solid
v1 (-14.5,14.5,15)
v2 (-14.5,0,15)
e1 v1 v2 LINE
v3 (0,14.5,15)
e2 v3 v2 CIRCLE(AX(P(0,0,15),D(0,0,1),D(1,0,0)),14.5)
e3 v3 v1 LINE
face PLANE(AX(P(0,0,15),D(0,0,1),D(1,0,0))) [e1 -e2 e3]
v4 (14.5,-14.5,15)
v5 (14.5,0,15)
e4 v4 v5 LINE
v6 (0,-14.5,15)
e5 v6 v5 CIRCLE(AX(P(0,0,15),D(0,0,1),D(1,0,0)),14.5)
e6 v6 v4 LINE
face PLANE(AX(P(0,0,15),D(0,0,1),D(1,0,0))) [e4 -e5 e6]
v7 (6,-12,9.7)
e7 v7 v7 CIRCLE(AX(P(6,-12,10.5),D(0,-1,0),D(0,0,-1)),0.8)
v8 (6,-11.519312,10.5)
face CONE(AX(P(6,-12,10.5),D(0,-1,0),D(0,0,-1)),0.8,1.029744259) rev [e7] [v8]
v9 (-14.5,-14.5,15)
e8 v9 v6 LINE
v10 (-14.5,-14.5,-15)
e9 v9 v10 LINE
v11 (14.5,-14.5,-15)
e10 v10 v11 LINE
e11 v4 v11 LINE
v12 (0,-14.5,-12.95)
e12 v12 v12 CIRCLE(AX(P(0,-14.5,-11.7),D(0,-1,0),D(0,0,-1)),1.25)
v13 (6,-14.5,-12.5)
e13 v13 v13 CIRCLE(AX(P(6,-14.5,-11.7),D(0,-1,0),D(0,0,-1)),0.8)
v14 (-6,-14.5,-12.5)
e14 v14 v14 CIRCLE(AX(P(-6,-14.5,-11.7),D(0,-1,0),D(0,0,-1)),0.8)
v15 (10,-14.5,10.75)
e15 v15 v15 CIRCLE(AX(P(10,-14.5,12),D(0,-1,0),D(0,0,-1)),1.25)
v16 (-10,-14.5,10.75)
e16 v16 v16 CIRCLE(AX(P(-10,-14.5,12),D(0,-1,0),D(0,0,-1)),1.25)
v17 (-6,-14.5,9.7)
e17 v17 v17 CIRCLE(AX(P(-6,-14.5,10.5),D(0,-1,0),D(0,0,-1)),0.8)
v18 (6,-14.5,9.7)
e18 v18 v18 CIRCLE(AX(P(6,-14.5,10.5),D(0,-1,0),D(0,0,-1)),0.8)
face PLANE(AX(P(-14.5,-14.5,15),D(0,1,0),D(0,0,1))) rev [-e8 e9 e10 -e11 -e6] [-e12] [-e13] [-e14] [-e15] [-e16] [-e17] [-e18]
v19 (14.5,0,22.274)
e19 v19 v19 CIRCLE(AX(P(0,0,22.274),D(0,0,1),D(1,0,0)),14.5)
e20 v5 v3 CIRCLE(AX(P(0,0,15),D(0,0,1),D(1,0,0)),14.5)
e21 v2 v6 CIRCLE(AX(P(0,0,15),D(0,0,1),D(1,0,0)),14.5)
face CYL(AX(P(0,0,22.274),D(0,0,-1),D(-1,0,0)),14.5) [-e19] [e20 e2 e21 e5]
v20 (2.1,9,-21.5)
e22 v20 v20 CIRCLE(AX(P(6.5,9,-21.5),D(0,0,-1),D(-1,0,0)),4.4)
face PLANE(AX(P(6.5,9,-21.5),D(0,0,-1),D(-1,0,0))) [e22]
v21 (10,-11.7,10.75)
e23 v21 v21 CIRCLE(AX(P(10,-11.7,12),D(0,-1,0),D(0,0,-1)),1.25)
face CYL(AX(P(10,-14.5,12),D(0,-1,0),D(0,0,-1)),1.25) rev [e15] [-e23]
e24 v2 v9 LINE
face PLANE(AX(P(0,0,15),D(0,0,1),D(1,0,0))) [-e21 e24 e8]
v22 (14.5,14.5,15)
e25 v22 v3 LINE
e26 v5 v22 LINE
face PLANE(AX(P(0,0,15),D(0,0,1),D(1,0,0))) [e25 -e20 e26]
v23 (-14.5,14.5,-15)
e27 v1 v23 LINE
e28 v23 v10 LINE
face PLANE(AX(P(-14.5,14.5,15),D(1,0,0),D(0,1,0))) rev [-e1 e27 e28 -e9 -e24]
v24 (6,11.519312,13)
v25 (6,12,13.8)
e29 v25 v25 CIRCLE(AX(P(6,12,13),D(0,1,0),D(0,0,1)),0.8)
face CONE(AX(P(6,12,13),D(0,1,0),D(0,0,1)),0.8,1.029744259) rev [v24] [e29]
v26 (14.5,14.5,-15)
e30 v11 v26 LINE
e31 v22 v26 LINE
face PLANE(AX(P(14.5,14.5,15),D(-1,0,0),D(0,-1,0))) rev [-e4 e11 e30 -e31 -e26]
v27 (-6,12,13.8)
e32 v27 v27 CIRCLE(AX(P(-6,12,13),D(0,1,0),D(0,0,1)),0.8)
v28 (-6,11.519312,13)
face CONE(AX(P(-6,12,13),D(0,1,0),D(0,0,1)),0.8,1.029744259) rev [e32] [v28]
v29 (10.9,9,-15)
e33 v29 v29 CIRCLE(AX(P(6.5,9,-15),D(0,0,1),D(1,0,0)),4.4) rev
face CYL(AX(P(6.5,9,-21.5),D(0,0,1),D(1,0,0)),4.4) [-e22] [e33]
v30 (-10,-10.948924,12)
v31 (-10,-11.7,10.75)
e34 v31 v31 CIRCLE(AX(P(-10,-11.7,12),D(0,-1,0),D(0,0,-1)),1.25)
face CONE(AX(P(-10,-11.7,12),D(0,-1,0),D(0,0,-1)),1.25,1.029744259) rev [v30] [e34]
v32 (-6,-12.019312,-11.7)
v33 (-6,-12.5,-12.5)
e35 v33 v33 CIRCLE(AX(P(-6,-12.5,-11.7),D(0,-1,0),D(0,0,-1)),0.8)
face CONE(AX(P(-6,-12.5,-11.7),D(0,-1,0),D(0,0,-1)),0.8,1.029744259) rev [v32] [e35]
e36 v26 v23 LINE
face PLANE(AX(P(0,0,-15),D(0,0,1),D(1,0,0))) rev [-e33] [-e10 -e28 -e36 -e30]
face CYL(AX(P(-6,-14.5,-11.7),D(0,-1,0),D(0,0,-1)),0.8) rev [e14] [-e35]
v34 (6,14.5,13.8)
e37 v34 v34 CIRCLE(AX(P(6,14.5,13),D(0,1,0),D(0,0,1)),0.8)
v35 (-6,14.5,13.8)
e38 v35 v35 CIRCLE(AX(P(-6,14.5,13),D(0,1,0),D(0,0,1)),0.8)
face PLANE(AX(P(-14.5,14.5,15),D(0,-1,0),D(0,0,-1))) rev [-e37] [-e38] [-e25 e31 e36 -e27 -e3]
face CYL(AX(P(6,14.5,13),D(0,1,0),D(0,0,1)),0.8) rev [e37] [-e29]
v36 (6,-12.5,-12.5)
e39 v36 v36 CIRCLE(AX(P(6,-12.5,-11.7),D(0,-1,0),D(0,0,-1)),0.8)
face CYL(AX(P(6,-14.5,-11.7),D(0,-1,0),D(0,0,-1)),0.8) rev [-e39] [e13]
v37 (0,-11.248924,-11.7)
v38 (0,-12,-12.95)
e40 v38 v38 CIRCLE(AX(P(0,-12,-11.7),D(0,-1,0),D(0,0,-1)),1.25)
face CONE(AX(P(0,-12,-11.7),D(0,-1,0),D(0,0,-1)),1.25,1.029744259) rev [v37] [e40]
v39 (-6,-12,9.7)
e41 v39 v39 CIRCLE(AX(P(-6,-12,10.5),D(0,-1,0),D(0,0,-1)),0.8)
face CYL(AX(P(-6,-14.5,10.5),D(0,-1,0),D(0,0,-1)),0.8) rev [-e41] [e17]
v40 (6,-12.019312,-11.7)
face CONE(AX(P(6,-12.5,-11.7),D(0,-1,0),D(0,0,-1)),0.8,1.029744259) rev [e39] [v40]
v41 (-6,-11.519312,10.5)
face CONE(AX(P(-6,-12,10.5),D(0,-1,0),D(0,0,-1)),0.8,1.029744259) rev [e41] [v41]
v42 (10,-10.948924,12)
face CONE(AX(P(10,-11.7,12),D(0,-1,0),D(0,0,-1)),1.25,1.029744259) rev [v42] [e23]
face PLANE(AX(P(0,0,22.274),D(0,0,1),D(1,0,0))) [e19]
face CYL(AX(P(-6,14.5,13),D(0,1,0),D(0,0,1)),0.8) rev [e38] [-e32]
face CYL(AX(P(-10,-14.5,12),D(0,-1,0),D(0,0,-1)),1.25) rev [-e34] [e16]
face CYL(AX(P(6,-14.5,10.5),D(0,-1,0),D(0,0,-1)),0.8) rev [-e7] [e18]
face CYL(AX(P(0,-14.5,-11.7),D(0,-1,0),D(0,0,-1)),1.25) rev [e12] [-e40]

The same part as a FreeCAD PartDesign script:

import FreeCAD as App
import Part
import Sketcher

V = App.Vector
Q = App.Units.Quantity

doc = App.newDocument("Part")
body = doc.addObject("PartDesign::Body", "Body")

sketch1 = doc.addObject("Sketcher::SketchObject", "Sketch")
body.addObject(sketch1)
sketch1.AttachmentSupport = (doc.XY_Plane, [""])
sketch1.MapMode = "FlatFace"
sketch1.addGeometry([
    Part.LineSegment(V(-14, 14, 0), V(-14, -14, 0)),
    Part.LineSegment(V(-14, -14, 0), V(14, -14, 0)),
    Part.LineSegment(V(14, -14, 0), V(14, 14, 0)),
    Part.LineSegment(V(14, 14, 0), V(-14, 14, 0)),
], False)
sketch1.addConstraint([
    Sketcher.Constraint("Coincident", 0, 2, 1, 1),
    Sketcher.Constraint("Coincident", 1, 2, 2, 1),
    Sketcher.Constraint("Coincident", 2, 2, 3, 1),
    Sketcher.Constraint("Coincident", 3, 2, 0, 1),
    Sketcher.Constraint("Vertical", 0),
    Sketcher.Constraint("Horizontal", 1),
    Sketcher.Constraint("Vertical", 2),
    Sketcher.Constraint("Horizontal", 3),
    Sketcher.Constraint("Symmetric", 0, 2, 2, 2, -1, 1),
    Sketcher.Constraint("Equal", 3, 0),
    Sketcher.Constraint("DistanceX", 1, 1, 1, 2, Q("29 mm")),
])
pad1 = doc.addObject("PartDesign::Pad", "Pad")
body.addObject(pad1)
pad1.Profile = sketch1
pad1.Length = 30
pad1.Midplane = True

sketch2 = doc.addObject("Sketcher::SketchObject", "Sketch001")
body.addObject(sketch2)
sketch2.AttachmentSupport = (doc.XY_Plane, [""])
sketch2.MapMode = "FlatFace"
sketch2.AttachmentOffset = App.Placement(V(0, 0, 15), App.Rotation())
sketch2.addGeometry(Part.Circle(V(0, 0, 0), V(0, 0, 1), 14), False)
sketch2.addConstraint([
    Sketcher.Constraint("Coincident", 0, 3, -1, 1),
    Sketcher.Constraint("Diameter", 0, Q("29 mm")),
])
pad2 = doc.addObject("PartDesign::Pad", "Pad001")
body.addObject(pad2)
pad2.Profile = sketch2
pad2.Length = 7.274

sketch3 = doc.addObject("Sketcher::SketchObject", "Sketch002")
body.addObject(sketch3)
sketch3.AttachmentSupport = (doc.XZ_Plane, [""])
sketch3.MapMode = "FlatFace"
sketch3.AttachmentOffset = App.Placement(V(0, 0, -14.5), App.Rotation())
sketch3.addGeometry([
    Part.Circle(V(-6, 13, 0), V(0, 0, 1), 0.8),
    Part.Circle(V(6, 13, 0), V(0, 0, 1), 0.8),
], False)
sketch3.addConstraint([
    Sketcher.Constraint("Equal", 0, 1),
    Sketcher.Constraint("Symmetric", 0, 3, 1, 3, -2),
    Sketcher.Constraint("Diameter", 0, Q("1.6 mm")),
    Sketcher.Constraint("DistanceX", 0, 3, -1, 1, Q("6 mm")),
    Sketcher.Constraint("DistanceY", -1, 1, 0, 3, Q("13 mm")),
])
doc.recompute()
hole = doc.addObject("PartDesign::Hole", "Hole")
body.addObject(hole)
hole.Profile = sketch3
hole.ThreadType = "None"
hole.Diameter = 1.6
hole.DepthType = "Dimension"
hole.Depth = 2.5
hole.DrillPoint = "Angled"
hole.DrillPointAngle = 118
hole.Reversed = True

sketch4 = doc.addObject("Sketcher::SketchObject", "Sketch003")
body.addObject(sketch4)
sketch4.AttachmentSupport = (doc.XZ_Plane, [""])
sketch4.MapMode = "FlatFace"
sketch4.AttachmentOffset = App.Placement(V(0, 0, 14.5), App.Rotation())
sketch4.addGeometry([
    Part.Circle(V(-6, -11.7, 0), V(0, 0, 1), 0.8),
    Part.Circle(V(6, -11.7, 0), V(0, 0, 1), 0.8),
], False)
sketch4.addConstraint([
    Sketcher.Constraint("Equal", 0, 1),
    Sketcher.Constraint("Symmetric", 0, 3, 1, 3, -2),
    Sketcher.Constraint("Diameter", 0, Q("1.6 mm")),
    Sketcher.Constraint("DistanceX", 0, 3, -1, 1, Q("6 mm")),
    Sketcher.Constraint("DistanceY", 0, 3, -1, 1, Q("11.7 mm")),
])
doc.recompute()
hole2 = doc.addObject("PartDesign::Hole", "Hole001")
body.addObject(hole2)
hole2.Profile = sketch4
hole2.ThreadType = "None"
hole2.Diameter = 1.6
hole2.DepthType = "Dimension"
hole2.Depth = 2
hole2.DrillPoint = "Angled"
hole2.DrillPointAngle = 118

sketch5 = doc.addObject("Sketcher::SketchObject", "Sketch004")
body.addObject(sketch5)
sketch5.AttachmentSupport = (doc.XZ_Plane, [""])
sketch5.MapMode = "FlatFace"
sketch5.AttachmentOffset = App.Placement(V(0, 0, 14.5), App.Rotation())
sketch5.addGeometry([
    Part.Circle(V(-6, 10.5, 0), V(0, 0, 1), 0.8),
    Part.Circle(V(6, 10.5, 0), V(0, 0, 1), 0.8),
], False)
sketch5.addConstraint([
    Sketcher.Constraint("Equal", 0, 1),
    Sketcher.Constraint("Symmetric", 0, 3, 1, 3, -2),
    Sketcher.Constraint("Diameter", 0, Q("1.6 mm")),
    Sketcher.Constraint("DistanceX", 0, 3, -1, 1, Q("6 mm")),
    Sketcher.Constraint("DistanceY", -1, 1, 0, 3, Q("10.5 mm")),
])
doc.recompute()
hole3 = doc.addObject("PartDesign::Hole", "Hole002")
body.addObject(hole3)
hole3.Profile = sketch5
hole3.ThreadType = "None"
hole3.Diameter = 1.6
hole3.DepthType = "Dimension"
hole3.Depth = 2.5
hole3.DrillPoint = "Angled"
hole3.DrillPointAngle = 118

sketch6 = doc.addObject("Sketcher::SketchObject", "Sketch005")
body.addObject(sketch6)
sketch6.AttachmentSupport = (doc.XZ_Plane, [""])
sketch6.MapMode = "FlatFace"
sketch6.AttachmentOffset = App.Placement(V(0, 0, 14.5), App.Rotation())
sketch6.addGeometry([
    Part.Circle(V(10, 12, 0), V(0, 0, 1), 1.2),
    Part.Circle(V(-10, 12, 0), V(0, 0, 1), 1.2),
], False)
sketch6.addConstraint([
    Sketcher.Constraint("Equal", 0, 1),
    Sketcher.Constraint("Symmetric", 0, 3, 1, 3, -2),
    Sketcher.Constraint("Diameter", 0, Q("2.5 mm")),
    Sketcher.Constraint("DistanceX", -1, 1, 0, 3, Q("10 mm")),
    Sketcher.Constraint("DistanceY", -1, 1, 0, 3, Q("12 mm")),
])
doc.recompute()
hole4 = doc.addObject("PartDesign::Hole", "Hole003")
body.addObject(hole4)
hole4.Profile = sketch6
hole4.ThreadType = "None"
hole4.Diameter = 2.5
hole4.DepthType = "Dimension"
hole4.Depth = 2.8
hole4.DrillPoint = "Angled"
hole4.DrillPointAngle = 118

sketch7 = doc.addObject("Sketcher::SketchObject", "Sketch006")
body.addObject(sketch7)
sketch7.AttachmentSupport = (doc.XZ_Plane, [""])
sketch7.MapMode = "FlatFace"
sketch7.AttachmentOffset = App.Placement(V(0, 0, 14.5), App.Rotation())
sketch7.addGeometry(Part.Circle(V(0, -11.7, 0), V(0, 0, 1), 1.2), False)
sketch7.addConstraint([
    Sketcher.Constraint("PointOnObject", 0, 3, -2),
    Sketcher.Constraint("Diameter", 0, Q("2.5 mm")),
    Sketcher.Constraint("DistanceY", 0, 3, -1, 1, Q("11.7 mm")),
])
doc.recompute()
hole5 = doc.addObject("PartDesign::Hole", "Hole004")
body.addObject(hole5)
hole5.Profile = sketch7
hole5.ThreadType = "None"
hole5.Diameter = 2.5
hole5.DepthType = "Dimension"
hole5.Depth = 2.5
hole5.DrillPoint = "Angled"
hole5.DrillPointAngle = 118

sketch8 = doc.addObject("Sketcher::SketchObject", "Sketch007")
body.addObject(sketch8)
sketch8.AttachmentSupport = (doc.XY_Plane, [""])
sketch8.MapMode = "FlatFace"
sketch8.AttachmentOffset = App.Placement(V(0, 0, -15), App.Rotation())
sketch8.addGeometry(Part.Circle(V(6.5, 9, 0), V(0, 0, 1), 4.4), False)
sketch8.addConstraint([
    Sketcher.Constraint("Diameter", 0, Q("8.8 mm")),
    Sketcher.Constraint("DistanceY", -1, 1, 0, 3, Q("9 mm")),
    Sketcher.Constraint("DistanceX", -1, 1, 0, 3, Q("6.5 mm")),
])
pad3 = doc.addObject("PartDesign::Pad", "Pad002")
body.addObject(pad3)
pad3.Profile = sketch8
pad3.Length = 6.5
pad3.Reversed = True

doc.recompute()
